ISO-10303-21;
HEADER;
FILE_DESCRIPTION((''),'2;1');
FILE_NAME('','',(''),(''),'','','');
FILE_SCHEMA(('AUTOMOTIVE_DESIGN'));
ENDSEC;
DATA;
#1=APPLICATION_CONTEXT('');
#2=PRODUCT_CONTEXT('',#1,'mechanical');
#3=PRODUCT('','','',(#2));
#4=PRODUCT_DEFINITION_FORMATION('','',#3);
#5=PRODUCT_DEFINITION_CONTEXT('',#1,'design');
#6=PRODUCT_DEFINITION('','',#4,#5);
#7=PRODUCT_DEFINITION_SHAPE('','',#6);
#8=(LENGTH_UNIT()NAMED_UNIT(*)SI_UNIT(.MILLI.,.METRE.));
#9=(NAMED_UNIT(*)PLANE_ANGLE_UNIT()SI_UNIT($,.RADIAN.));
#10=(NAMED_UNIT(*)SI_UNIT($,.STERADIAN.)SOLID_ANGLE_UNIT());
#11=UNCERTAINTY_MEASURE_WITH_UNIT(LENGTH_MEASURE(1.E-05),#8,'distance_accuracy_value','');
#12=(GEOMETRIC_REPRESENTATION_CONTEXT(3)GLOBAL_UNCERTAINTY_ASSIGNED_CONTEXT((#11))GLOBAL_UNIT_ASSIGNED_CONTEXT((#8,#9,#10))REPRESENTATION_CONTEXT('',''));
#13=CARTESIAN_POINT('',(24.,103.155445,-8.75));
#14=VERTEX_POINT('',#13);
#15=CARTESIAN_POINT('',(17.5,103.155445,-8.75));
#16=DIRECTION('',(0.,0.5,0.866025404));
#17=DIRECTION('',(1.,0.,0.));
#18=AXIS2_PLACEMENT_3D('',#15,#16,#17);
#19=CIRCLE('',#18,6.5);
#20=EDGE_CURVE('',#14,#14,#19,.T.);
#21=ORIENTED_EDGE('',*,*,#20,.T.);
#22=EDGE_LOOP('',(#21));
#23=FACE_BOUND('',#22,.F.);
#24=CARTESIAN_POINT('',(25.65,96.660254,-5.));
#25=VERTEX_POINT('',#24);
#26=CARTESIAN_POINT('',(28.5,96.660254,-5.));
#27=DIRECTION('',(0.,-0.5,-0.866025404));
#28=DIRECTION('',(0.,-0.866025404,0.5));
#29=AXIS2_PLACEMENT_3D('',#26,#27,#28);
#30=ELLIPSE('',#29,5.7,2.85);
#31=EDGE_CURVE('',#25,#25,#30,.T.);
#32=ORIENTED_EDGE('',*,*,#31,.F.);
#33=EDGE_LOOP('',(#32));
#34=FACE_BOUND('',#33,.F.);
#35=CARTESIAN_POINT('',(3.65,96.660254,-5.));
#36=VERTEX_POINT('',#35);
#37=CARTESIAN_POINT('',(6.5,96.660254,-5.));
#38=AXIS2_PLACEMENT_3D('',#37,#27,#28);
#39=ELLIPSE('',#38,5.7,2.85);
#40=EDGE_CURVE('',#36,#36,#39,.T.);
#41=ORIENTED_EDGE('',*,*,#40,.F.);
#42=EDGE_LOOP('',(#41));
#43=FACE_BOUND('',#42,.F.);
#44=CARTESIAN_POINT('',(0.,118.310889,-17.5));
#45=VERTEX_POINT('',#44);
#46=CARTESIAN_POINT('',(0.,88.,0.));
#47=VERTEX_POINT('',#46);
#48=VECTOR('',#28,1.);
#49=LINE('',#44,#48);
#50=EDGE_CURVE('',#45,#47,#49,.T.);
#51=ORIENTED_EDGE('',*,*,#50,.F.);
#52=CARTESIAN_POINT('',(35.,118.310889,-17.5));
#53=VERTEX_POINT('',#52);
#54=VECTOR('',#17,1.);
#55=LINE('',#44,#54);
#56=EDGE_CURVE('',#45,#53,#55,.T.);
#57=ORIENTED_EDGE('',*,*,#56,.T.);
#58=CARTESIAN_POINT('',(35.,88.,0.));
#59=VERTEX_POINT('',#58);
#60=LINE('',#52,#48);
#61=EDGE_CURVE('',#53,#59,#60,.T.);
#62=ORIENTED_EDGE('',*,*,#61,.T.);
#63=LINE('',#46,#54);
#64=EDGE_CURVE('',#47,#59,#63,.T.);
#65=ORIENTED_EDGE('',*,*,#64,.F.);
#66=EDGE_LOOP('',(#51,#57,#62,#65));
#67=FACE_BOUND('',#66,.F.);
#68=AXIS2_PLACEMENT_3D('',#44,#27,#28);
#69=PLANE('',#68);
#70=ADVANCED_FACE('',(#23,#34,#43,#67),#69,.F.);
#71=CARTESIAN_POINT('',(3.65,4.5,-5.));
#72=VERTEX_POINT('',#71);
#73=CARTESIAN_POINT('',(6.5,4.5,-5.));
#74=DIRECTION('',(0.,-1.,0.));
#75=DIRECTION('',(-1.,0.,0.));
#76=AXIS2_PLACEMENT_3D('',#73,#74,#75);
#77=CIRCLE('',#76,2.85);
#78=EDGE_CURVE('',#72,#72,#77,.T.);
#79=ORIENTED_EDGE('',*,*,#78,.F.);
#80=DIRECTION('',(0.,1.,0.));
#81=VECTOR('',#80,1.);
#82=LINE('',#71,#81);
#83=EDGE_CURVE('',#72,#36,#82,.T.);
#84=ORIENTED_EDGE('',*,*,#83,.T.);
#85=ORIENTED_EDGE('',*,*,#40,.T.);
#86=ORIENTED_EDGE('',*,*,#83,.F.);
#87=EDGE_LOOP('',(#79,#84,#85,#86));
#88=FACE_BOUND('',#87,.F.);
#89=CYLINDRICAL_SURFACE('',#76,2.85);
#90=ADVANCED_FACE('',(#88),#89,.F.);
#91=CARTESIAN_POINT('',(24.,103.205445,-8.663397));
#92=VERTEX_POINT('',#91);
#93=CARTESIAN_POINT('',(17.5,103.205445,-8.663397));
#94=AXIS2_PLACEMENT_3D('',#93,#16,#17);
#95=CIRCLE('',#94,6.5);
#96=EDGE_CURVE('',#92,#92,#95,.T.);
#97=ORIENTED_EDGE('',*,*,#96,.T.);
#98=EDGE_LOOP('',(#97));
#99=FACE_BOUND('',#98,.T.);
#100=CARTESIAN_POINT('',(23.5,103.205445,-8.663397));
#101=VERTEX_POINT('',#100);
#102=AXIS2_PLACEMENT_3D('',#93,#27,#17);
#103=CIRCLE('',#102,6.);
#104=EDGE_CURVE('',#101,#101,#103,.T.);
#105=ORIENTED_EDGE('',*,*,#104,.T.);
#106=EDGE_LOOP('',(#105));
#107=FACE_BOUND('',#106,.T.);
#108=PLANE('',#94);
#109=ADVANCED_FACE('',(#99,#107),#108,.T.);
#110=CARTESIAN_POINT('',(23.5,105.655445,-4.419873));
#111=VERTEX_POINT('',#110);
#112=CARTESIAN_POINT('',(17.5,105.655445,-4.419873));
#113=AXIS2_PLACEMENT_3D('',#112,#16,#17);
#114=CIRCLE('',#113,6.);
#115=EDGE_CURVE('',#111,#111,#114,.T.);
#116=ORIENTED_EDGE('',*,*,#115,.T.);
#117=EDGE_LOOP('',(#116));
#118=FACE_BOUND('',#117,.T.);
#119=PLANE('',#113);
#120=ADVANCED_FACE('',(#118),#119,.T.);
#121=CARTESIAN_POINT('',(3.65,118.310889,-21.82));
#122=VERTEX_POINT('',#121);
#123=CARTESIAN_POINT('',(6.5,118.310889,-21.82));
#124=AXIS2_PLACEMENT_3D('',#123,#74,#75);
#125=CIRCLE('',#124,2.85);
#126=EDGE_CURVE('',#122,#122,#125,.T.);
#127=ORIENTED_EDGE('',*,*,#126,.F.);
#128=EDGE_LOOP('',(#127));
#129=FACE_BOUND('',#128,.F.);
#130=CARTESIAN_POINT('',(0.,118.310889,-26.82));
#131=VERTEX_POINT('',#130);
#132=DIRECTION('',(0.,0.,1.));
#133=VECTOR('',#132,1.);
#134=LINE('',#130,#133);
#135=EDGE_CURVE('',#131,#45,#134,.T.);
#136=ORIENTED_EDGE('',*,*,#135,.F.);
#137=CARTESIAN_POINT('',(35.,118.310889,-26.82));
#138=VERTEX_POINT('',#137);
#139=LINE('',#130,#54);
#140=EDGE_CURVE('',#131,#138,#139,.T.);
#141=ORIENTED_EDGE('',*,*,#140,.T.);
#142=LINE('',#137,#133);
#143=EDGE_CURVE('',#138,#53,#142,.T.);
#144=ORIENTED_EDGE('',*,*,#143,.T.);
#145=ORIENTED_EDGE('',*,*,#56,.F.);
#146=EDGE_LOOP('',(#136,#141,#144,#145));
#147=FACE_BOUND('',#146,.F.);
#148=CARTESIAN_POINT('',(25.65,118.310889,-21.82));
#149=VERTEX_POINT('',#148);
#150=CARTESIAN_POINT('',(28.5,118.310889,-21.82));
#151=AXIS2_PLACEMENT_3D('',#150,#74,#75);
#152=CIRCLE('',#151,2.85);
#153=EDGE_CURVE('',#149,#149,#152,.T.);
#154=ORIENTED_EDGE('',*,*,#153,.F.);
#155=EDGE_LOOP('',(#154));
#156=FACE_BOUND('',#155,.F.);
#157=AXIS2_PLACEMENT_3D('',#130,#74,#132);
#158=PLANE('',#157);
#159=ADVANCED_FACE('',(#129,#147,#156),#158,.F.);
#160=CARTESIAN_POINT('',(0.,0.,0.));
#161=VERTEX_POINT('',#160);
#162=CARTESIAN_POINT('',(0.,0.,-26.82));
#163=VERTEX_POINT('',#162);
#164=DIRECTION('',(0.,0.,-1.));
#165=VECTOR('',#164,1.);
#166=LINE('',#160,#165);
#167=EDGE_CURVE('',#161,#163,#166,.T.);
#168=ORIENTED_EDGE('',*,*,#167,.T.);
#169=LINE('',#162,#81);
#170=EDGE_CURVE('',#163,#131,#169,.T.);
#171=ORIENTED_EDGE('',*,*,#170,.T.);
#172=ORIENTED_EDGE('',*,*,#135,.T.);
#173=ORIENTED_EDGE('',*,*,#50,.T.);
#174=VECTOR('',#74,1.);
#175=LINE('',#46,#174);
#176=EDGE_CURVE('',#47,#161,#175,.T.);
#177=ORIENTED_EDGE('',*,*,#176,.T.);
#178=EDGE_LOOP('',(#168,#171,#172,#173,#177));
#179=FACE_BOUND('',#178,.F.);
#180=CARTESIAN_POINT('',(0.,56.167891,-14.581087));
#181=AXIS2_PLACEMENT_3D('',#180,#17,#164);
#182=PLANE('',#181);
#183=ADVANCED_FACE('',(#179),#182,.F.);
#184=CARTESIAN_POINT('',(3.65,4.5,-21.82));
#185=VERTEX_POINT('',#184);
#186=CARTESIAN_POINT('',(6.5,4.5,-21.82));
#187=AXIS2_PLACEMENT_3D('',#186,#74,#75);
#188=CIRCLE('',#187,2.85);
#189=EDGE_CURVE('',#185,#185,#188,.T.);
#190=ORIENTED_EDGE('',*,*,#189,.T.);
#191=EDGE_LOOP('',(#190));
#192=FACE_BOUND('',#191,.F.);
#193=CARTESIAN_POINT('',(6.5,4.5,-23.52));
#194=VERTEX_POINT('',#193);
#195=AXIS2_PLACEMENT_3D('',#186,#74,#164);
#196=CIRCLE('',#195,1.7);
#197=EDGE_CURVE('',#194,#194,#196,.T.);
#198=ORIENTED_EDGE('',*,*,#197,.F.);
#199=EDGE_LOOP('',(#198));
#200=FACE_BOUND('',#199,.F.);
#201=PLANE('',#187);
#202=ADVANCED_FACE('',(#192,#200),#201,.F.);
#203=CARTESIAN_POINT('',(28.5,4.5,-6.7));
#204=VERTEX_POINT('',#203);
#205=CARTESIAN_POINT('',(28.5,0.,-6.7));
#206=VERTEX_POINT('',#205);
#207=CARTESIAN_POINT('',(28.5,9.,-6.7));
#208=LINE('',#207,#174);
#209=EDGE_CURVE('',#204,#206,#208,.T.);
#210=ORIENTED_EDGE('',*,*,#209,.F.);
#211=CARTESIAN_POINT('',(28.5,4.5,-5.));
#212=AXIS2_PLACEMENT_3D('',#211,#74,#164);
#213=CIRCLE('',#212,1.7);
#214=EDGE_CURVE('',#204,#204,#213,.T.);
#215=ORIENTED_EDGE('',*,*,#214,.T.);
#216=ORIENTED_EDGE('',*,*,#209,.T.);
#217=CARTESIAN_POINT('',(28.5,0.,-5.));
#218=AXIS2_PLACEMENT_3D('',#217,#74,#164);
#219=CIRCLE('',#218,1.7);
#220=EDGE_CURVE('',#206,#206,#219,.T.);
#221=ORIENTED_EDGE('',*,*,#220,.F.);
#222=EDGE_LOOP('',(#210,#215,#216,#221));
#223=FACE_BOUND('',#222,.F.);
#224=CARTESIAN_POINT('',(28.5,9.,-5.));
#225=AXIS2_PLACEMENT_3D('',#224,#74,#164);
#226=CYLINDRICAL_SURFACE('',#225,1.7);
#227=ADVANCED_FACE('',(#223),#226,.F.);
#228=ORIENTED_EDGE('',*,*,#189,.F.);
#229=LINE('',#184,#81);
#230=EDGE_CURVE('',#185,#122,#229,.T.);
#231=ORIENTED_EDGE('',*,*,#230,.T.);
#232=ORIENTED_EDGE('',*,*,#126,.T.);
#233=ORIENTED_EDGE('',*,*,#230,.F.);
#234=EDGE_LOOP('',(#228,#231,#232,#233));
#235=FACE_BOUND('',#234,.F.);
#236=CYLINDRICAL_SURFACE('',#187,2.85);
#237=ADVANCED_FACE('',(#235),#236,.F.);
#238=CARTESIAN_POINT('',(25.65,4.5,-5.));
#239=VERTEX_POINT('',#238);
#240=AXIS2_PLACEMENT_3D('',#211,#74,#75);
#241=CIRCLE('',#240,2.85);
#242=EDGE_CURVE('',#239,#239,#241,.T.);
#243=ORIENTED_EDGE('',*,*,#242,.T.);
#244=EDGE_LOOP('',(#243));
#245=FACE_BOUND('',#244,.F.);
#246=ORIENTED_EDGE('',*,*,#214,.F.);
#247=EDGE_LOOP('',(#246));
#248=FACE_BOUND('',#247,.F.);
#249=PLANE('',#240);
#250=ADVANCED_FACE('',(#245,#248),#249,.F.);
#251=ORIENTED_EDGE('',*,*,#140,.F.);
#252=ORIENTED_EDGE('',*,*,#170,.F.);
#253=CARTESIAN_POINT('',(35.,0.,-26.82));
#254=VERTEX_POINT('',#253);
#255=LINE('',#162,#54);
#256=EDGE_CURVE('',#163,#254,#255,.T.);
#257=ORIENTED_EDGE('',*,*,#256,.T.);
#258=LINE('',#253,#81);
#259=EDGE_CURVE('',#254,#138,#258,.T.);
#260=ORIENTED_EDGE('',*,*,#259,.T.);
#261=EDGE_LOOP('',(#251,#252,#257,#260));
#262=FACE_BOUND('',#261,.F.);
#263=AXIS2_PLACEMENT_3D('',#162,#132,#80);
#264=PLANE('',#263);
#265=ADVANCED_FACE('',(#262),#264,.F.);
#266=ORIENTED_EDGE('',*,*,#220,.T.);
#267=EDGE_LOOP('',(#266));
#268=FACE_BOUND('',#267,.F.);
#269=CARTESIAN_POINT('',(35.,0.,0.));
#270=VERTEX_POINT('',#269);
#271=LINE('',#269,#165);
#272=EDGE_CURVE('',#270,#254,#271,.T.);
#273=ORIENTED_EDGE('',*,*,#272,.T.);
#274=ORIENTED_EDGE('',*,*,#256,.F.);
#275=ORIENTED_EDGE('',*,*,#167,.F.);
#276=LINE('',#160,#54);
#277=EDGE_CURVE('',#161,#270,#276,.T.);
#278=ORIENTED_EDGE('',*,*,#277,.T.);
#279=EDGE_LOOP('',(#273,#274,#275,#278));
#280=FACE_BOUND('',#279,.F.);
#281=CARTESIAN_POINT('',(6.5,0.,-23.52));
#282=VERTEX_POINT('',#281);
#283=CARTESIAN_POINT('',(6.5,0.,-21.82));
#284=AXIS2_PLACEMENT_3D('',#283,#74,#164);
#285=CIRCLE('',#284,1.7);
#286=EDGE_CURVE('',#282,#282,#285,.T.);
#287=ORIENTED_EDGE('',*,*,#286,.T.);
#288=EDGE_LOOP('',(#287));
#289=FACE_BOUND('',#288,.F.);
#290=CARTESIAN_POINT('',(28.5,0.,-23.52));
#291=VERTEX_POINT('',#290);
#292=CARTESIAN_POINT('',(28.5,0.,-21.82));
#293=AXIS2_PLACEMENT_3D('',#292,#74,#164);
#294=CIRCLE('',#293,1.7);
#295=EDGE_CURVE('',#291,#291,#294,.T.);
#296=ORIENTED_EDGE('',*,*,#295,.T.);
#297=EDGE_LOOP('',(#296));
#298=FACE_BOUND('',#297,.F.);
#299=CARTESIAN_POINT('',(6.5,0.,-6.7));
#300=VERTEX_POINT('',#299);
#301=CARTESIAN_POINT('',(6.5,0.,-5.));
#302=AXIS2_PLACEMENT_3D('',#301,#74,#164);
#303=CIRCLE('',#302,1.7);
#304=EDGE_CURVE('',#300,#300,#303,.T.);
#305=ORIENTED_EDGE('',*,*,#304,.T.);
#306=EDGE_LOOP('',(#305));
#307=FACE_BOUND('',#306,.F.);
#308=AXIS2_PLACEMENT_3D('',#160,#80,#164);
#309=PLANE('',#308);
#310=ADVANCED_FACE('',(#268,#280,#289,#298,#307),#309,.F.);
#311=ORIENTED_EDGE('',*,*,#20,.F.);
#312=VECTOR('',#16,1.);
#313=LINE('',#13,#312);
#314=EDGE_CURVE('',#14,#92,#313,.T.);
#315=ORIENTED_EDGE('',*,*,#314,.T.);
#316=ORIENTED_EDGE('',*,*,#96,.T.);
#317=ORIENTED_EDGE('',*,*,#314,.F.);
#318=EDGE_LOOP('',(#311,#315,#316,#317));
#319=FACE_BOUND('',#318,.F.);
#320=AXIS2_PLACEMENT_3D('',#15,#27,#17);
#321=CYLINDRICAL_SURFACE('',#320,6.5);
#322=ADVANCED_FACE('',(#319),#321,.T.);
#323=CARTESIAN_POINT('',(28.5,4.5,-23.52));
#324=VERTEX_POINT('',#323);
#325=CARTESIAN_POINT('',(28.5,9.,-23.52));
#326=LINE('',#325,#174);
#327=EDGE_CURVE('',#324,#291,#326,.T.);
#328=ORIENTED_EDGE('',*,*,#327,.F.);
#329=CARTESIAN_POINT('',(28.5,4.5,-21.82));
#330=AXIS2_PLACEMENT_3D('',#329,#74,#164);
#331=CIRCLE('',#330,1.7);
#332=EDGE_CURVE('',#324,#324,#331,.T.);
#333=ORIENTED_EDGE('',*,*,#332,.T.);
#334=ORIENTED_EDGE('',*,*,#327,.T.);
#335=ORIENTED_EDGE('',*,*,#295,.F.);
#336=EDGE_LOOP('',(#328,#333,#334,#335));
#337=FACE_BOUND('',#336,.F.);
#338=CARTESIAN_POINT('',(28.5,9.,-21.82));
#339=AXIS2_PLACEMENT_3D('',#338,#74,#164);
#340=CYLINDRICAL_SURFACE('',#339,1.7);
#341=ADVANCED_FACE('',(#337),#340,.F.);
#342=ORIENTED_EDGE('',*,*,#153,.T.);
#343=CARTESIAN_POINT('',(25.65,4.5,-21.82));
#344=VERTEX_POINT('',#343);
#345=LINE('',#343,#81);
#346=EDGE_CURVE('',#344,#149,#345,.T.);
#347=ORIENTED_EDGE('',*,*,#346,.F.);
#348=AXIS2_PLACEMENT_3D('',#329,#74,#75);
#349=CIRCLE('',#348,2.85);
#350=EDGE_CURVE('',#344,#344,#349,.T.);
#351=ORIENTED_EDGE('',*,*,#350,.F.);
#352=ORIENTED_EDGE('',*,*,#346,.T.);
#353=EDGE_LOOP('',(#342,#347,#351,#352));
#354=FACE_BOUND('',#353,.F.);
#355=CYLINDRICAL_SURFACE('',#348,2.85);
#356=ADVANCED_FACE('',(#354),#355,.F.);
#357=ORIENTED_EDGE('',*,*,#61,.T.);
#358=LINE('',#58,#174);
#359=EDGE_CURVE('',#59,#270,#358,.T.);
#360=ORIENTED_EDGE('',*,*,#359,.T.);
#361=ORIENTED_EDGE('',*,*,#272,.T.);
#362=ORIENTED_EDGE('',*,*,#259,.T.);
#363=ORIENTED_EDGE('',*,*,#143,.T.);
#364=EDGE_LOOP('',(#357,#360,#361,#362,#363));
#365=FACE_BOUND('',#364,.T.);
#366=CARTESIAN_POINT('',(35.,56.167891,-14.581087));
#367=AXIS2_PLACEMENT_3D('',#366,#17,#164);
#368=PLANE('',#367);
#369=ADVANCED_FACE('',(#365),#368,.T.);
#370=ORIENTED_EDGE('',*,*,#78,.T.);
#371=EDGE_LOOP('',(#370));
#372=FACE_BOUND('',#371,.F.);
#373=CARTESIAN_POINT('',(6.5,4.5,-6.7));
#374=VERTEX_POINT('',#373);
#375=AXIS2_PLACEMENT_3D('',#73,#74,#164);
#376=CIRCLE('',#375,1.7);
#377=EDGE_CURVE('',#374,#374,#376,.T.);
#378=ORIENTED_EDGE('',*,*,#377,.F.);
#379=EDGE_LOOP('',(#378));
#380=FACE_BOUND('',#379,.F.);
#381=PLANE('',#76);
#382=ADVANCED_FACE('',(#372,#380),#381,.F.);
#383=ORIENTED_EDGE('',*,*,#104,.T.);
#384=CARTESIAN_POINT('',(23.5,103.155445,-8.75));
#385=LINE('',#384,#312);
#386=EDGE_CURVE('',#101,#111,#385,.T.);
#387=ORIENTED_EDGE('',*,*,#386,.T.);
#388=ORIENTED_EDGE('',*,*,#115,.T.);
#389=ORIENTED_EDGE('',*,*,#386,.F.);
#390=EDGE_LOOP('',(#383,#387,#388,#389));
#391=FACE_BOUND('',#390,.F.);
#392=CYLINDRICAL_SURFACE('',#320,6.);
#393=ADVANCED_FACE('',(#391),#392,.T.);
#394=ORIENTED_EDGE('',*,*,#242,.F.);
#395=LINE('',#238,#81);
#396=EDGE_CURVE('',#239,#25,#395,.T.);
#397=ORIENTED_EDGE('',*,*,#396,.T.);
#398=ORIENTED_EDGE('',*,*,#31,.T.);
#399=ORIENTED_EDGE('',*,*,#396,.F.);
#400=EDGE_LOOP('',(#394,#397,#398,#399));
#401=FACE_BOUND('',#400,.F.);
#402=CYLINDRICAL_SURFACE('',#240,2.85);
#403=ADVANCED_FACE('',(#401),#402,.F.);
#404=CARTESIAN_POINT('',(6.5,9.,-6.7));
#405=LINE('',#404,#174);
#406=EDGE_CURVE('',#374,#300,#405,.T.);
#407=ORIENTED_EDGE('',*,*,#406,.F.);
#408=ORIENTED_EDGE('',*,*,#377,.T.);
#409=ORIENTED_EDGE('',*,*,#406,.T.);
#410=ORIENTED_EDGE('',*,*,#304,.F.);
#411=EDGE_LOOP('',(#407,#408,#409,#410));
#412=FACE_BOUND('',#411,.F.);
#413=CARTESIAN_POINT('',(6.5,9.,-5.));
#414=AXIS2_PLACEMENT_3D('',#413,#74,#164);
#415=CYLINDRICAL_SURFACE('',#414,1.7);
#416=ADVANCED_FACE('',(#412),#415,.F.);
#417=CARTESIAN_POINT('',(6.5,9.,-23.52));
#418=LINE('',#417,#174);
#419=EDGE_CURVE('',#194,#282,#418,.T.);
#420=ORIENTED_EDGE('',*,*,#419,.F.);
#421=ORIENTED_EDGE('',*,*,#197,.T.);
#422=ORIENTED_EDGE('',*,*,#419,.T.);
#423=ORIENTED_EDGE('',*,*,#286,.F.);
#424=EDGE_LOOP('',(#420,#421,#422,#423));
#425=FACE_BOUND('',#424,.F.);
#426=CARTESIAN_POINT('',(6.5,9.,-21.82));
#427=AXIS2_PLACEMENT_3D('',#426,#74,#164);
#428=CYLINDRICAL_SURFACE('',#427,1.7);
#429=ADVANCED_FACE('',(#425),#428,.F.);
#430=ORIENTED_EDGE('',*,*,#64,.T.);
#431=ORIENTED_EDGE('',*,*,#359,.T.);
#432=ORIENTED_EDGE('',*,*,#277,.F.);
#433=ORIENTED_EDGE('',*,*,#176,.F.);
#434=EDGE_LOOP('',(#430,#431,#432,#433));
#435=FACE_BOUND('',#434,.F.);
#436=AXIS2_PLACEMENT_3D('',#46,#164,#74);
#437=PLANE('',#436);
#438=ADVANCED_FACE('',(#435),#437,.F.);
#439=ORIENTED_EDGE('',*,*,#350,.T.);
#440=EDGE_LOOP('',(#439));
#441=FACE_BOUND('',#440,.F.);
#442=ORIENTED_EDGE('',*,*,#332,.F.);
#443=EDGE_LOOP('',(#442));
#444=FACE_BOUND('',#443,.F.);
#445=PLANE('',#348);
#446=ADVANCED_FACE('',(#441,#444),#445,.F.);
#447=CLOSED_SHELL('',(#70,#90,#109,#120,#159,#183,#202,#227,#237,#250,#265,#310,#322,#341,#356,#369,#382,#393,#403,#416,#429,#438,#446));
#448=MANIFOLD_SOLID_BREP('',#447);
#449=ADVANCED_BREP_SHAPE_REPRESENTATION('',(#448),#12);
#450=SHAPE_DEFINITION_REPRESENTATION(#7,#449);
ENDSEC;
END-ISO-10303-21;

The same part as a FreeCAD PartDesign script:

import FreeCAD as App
import Part
import Sketcher

V = App.Vector
Q = App.Units.Quantity


def add_polygon(sketch, points):
    """Adds a closed chain of lines whose ends are joined by coincident constraints."""
    first, n = sketch.GeometryCount, len(points)
    for a, b in zip(points, points[1:] + points[:1]):
        sketch.addGeometry(Part.LineSegment(App.Vector(*a, 0), App.Vector(*b, 0)), False)
    for i in range(n):
        sketch.addConstraint(Sketcher.Constraint("Coincident", first + i, 2, first + (i + 1) % n, 1))

doc = App.newDocument("Part")
body = doc.addObject("PartDesign::Body", "Body")

# Sketch on YZ plane
sketch1 = doc.addObject("Sketcher::SketchObject", "Sketch")
body.addObject(sketch1)
sketch1.AttachmentSupport = (doc.YZ_Plane, [""])
sketch1.MapMode = "FlatFace"
add_polygon(sketch1, [(0, 0), (0, -27), (118, -27), (118, -18), (88, 0)])  # lines 0-4
sketch1.addConstraint(Sketcher.Constraint("Vertical", 0))
sketch1.addConstraint(Sketcher.Constraint("Horizontal", 1))
sketch1.addConstraint(Sketcher.Constraint("Vertical", 2))
sketch1.addConstraint(Sketcher.Constraint("Horizontal", 4))
sketch1.addConstraint(Sketcher.Constraint("Coincident", 4, 2, -1, 1))
sketch1.addConstraint(Sketcher.Constraint("DistanceX", 4, 2, 4, 1, 88.0))
sketch1.addConstraint(Sketcher.Constraint("Angle", 3, Q("150 deg")))
sketch1.addConstraint(Sketcher.Constraint("Distance", 3, 35.0))
sketch1.addConstraint(Sketcher.Constraint("DistanceY", 0, 2, 0, 1, 26.82))
pad1 = doc.addObject("PartDesign::Pad", "Pad")
body.addObject(pad1)
pad1.Profile = sketch1
pad1.Length = 35

# Sketch on an angled plane
sketch2 = doc.addObject("Sketcher::SketchObject", "Sketch001")
body.addObject(sketch2)
sketch2.Placement = App.Placement(V(0, 22, 38.105118), App.Rotation(V(1, 0, 0), V(0, 0.866025404, -0.5), V(0, 0.5, 0.866025404), "ZXY"))
sketch2.addGeometry(Part.Circle(V(18, 94, 0), V(0, 0, 1), 6), False)
sketch2.addConstraint(Sketcher.Constraint("Diameter", 0, 12.0))
sketch2.addConstraint(Sketcher.Constraint("DistanceX", -1, 1, 0, 3, 17.5))
sketch2.addConstraint(Sketcher.Constraint("DistanceY", -1, 1, 0, 3, 93.710236))
pad2 = doc.addObject("PartDesign::Pad", "Pad001")
body.addObject(pad2)
pad2.Profile = sketch2
pad2.Length = 5

# Sketch on an angled plane
sketch3 = doc.addObject("Sketcher::SketchObject", "Sketch002")
body.addObject(sketch3)
sketch3.Placement = App.Placement(V(0, 22, 38.105118), App.Rotation(V(1, 0, 0), V(0, 0.866025404, -0.5), V(0, 0.5, 0.866025404), "ZXY"))
sketch3.addGeometry(Part.Circle(V(18, 94, 0), V(0, 0, 1), 6), False)
sketch3.addConstraint(Sketcher.Constraint("Diameter", 0, 13.0))
sketch3.addConstraint(Sketcher.Constraint("DistanceX", -1, 1, 0, 3, 17.5))
sketch3.addConstraint(Sketcher.Constraint("DistanceY", -1, 1, 0, 3, 93.710236))
pad3 = doc.addObject("PartDesign::Pad", "Pad002")
body.addObject(pad3)
pad3.Profile = sketch3
pad3.Length = 0.1

# Sketch on XZ plane
sketch4 = doc.addObject("Sketcher::SketchObject", "Sketch003")
body.addObject(sketch4)
sketch4.AttachmentSupport = (doc.XZ_Plane, [""])
sketch4.MapMode = "FlatFace"
sketch4.AttachmentOffset = App.Placement(V(0, 0, -4.5), App.Rotation())
sketch4.addGeometry(Part.Circle(V(28.5, -5, 0), V(0, 0, 1), 2.9), False)
sketch4.addGeometry(Part.Circle(V(6.5, -5, 0), V(0, 0, 1), 2.9), False)
sketch4.addGeometry(Part.Circle(V(6.5, -21.8, 0), V(0, 0, 1), 2.9), False)
sketch4.addGeometry(Part.Circle(V(28.5, -21.8, 0), V(0, 0, 1), 2.9), False)
sketch4.addConstraint(Sketcher.Constraint("Equal", 0, 1))
sketch4.addConstraint(Sketcher.Constraint("Equal", 1, 2))
sketch4.addConstraint(Sketcher.Constraint("Equal", 2, 3))
sketch4.addConstraint(Sketcher.Constraint("Horizontal", 0, 3, 1, 3))
sketch4.addConstraint(Sketcher.Constraint("Horizontal", 2, 3, 3, 3))
sketch4.addConstraint(Sketcher.Constraint("Vertical", 1, 3, 2, 3))
sketch4.addConstraint(Sketcher.Constraint("Vertical", 0, 3, 3, 3))
sketch4.addConstraint(Sketcher.Constraint("Diameter", 0, 5.7))
sketch4.addConstraint(Sketcher.Constraint("DistanceY", 0, 3, -1, 1, 5.0))
sketch4.addConstraint(Sketcher.Constraint("DistanceX", 1, 3, 0, 3, 22.0))
sketch4.addConstraint(Sketcher.Constraint("DistanceX", -1, 1, 0, 3, 28.5))
sketch4.addConstraint(Sketcher.Constraint("DistanceY", 2, 3, -1, 1, 21.82))
pocket1 = doc.addObject("PartDesign::Pocket", "Pocket")
body.addObject(pocket1)
pocket1.Profile = sketch4
pocket1.Type = "ThroughAll"

# Sketch on XZ plane
sketch5 = doc.addObject("Sketcher::SketchObject", "Sketch004")
body.addObject(sketch5)
sketch5.AttachmentSupport = (doc.XZ_Plane, [""])
sketch5.MapMode = "FlatFace"
sketch5.AttachmentOffset = App.Placement(V(0, 0, -4.5), App.Rotation())
sketch5.addGeometry(Part.Circle(V(6.5, -5, 0), V(0, 0, 1), 1.7), False)
sketch5.addGeometry(Part.Circle(V(6.5, -21.8, 0), V(0, 0, 1), 1.7), False)
sketch5.addGeometry(Part.Circle(V(28.5, -21.8, 0), V(0, 0, 1), 1.7), False)
sketch5.addGeometry(Part.Circle(V(28.5, -5, 0), V(0, 0, 1), 1.7), False)
sketch5.addConstraint(Sketcher.Constraint("Equal", 0, 1))
sketch5.addConstraint(Sketcher.Constraint("Equal", 1, 2))
sketch5.addConstraint(Sketcher.Constraint("Equal", 2, 3))
sketch5.addConstraint(Sketcher.Constraint("Horizontal", 1, 3, 2, 3))
sketch5.addConstraint(Sketcher.Constraint("Horizontal", 0, 3, 3, 3))
sketch5.addConstraint(Sketcher.Constraint("Vertical", 0, 3, 1, 3))
sketch5.addConstraint(Sketcher.Constraint("Vertical", 2, 3, 3, 3))
sketch5.addConstraint(Sketcher.Constraint("Diameter", 0, 3.4))
sketch5.addConstraint(Sketcher.Constraint("DistanceY", 0, 3, -1, 1, 5.0))
sketch5.addConstraint(Sketcher.Constraint("DistanceX", 1, 3, 2, 3, 22.0))
sketch5.addConstraint(Sketcher.Constraint("DistanceX", -1, 1, 0, 3, 6.5))
sketch5.addConstraint(Sketcher.Constraint("DistanceY", 1, 3, -1, 1, 21.82))
doc.recompute()
hole = doc.addObject("PartDesign::Hole", "Hole")
body.addObject(hole)
hole.Profile = sketch5
hole.ThreadType = "None"
hole.Diameter = 3.4
hole.DepthType = "Dimension"
hole.Depth = 4.5
hole.DrillPoint = "Flat"
hole.Reversed = True

doc.recompute()
